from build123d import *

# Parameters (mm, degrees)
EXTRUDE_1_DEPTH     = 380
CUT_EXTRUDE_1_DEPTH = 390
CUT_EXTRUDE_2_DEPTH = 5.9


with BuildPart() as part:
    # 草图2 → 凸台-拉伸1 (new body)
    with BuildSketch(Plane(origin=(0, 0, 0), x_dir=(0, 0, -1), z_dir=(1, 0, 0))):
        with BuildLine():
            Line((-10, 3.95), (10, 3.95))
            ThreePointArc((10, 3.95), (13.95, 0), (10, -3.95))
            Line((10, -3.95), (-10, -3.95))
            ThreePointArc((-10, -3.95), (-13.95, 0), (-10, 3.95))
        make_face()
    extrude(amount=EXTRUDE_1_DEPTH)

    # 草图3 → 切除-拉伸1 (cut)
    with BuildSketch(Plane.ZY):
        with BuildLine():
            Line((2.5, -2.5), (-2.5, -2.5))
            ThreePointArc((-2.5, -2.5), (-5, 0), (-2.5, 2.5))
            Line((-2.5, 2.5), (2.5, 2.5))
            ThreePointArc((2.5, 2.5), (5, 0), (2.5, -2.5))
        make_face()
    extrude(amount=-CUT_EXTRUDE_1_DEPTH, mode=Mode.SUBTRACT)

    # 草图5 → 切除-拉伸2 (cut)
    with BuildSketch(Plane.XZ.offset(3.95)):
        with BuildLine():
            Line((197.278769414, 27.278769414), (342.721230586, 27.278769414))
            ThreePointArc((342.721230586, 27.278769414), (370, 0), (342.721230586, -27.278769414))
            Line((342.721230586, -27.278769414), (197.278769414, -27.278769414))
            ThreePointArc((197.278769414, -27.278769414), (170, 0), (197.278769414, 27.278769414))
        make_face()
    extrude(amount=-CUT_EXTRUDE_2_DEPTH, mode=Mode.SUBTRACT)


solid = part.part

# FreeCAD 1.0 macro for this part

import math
import FreeCAD as App
import Part
import Sketcher
from FreeCAD import Vector
Q = App.Units.Quantity

doc = App.newDocument("Part")
params = doc.addObject("Spreadsheet::Sheet", "Params")
for row, (alias, value) in enumerate([
    ("sketch1_height", "20 mm"),
    ("sketch1_radius", "3.95 mm"),
    ("pad1_length", "380 mm"),
    ("sketch2_radius", "2.5 mm"),
    ("sketch2_height", "5 mm"),
    ("pocket1_length", "390 mm"),
    ("pocket2_length", "5.9 mm"),
], start=1):
    params.set(f"A{row}", alias)
    params.set(f"B{row}", "=" + value)
    params.setAlias(f"B{row}", alias)

body = doc.addObject("PartDesign::Body", "Body")

# Sketch on YZ plane
sketch1 = doc.addObject("Sketcher::SketchObject", "Sketch")
body.addObject(sketch1)
sketch1.AttachmentSupport = (doc.YZ_Plane, [""])
sketch1.MapMode = "FlatFace"
sketch1.addGeometry(Part.LineSegment(Vector(3.95, -10, 0), Vector(3.95, 10, 0)), False)
sketch1.addGeometry(Part.ArcOfCircle(Part.Circle(Vector(0, 10, 0), Vector(0, 0, 1), 3.95), math.radians(0), math.radians(180)), False)
sketch1.addGeometry(Part.LineSegment(Vector(-3.95, 10, 0), Vector(-3.95, -10, 0)), False)
sketch1.addGeometry(Part.ArcOfCircle(Part.Circle(Vector(0, -10, 0), Vector(0, 0, 1), 3.95), math.radians(180), math.radians(360)), False)
sketch1.addConstraint(Sketcher.Constraint("Tangent", 0, 2, 1, 1))
sketch1.addConstraint(Sketcher.Constraint("Tangent", 1, 2, 2, 1))
sketch1.addConstraint(Sketcher.Constraint("Tangent", 2, 2, 3, 1))
sketch1.addConstraint(Sketcher.Constraint("Tangent", 3, 2, 0, 1))
sketch1.addConstraint(Sketcher.Constraint("Vertical", 0))
sketch1.addConstraint(Sketcher.Constraint("Vertical", 2))
sketch1.addConstraint(Sketcher.Constraint("Symmetric", 1, 3, 3, 3, -1, 1))
sketch1.addConstraint(Sketcher.Constraint("DistanceY", 0, 1, 0, 2, Q("20 mm")))
sketch1.addConstraint(Sketcher.Constraint("Radius", 1, Q("3.95 mm")))
sketch1.setExpression("Constraints[7]", "Params.sketch1_height")
sketch1.setExpression("Constraints[8]", "Params.sketch1_radius")
pad1 = doc.addObject("PartDesign::Pad", "Pad")
body.addObject(pad1)
pad1.Profile = sketch1
pad1.setExpression("Length", "Params.pad1_length")

# Sketch on YZ plane
sketch2 = doc.addObject("Sketcher::SketchObject", "Sketch001")
body.addObject(sketch2)
sketch2.AttachmentSupport = (doc.YZ_Plane, [""])
sketch2.MapMode = "FlatFace"
sketch2.addGeometry(Part.LineSegment(Vector(-2.5, -2.5, 0), Vector(-2.5, 2.5, 0)), False)
sketch2.addGeometry(Part.ArcOfCircle(Part.Circle(Vector(0, 2.5, 0), Vector(0, 0, 1), 2.5), math.radians(0), math.radians(180)), False)
sketch2.addGeometry(Part.LineSegment(Vector(2.5, 2.5, 0), Vector(2.5, -2.5, 0)), False)
sketch2.addGeometry(Part.ArcOfCircle(Part.Circle(Vector(0, -2.5, 0), Vector(0, 0, 1), 2.5), math.radians(180), math.radians(360)), False)
sketch2.addConstraint(Sketcher.Constraint("Tangent", 0, 2, 1, 2))
sketch2.addConstraint(Sketcher.Constraint("Tangent", 1, 1, 2, 1))
sketch2.addConstraint(Sketcher.Constraint("Tangent", 2, 2, 3, 2))
sketch2.addConstraint(Sketcher.Constraint("Tangent", 3, 1, 0, 1))
sketch2.addConstraint(Sketcher.Constraint("Vertical", 0))
sketch2.addConstraint(Sketcher.Constraint("Vertical", 2))
sketch2.addConstraint(Sketcher.Constraint("Symmetric", 1, 3, 3, 3, -1, 1))
sketch2.addConstraint(Sketcher.Constraint("Radius", 1, Q("2.5 mm")))
sketch2.addConstraint(Sketcher.Constraint("DistanceY", 0, 1, 0, 2, Q("5 mm")))
sketch2.setExpression("Constraints[7]", "Params.sketch2_radius")
sketch2.setExpression("Constraints[8]", "Params.sketch2_height")
pocket1 = doc.addObject("PartDesign::Pocket", "Pocket")
body.addObject(pocket1)
pocket1.Profile = sketch2
pocket1.setExpression("Length", "Params.pocket1_length")
pocket1.Reversed = True

# Sketch on XZ plane
sketch3 = doc.addObject("Sketcher::SketchObject", "Sketch002")
body.addObject(sketch3)
sketch3.AttachmentSupport = (doc.XZ_Plane, [""])
sketch3.MapMode = "FlatFace"
sketch3.AttachmentOffset = App.Placement(Vector(0, 0, 3.95), App.Rotation())
sketch3.addGeometry(Part.LineSegment(Vector(342.721231, 27.278769, 0), Vector(197.278769, 27.278769, 0)), False)
sketch3.addGeometry(Part.ArcOfCircle(Part.Circle(Vector(197.278769, 0, 0), Vector(0, 0, 1), 27.278769), math.radians(90), math.radians(270)), False)
sketch3.addGeometry(Part.LineSegment(Vector(197.278769, -27.278769, 0), Vector(342.721231, -27.278769, 0)), False)
sketch3.addGeometry(Part.ArcOfCircle(Part.Circle(Vector(342.721231, 0, 0), Vector(0, 0, 1), 27.278769), math.radians(-90), math.radians(90)), False)
sketch3.addConstraint(Sketcher.Constraint("Tangent", 0, 2, 1, 1))
sketch3.addConstraint(Sketcher.Constraint("Tangent", 1, 2, 2, 1))
sketch3.addConstraint(Sketcher.Constraint("Tangent", 2, 2, 3, 1))
sketch3.addConstraint(Sketcher.Constraint("Tangent", 3, 2, 0, 1))
sketch3.addConstraint(Sketcher.Constraint("Horizontal", 0))
sketch3.addConstraint(Sketcher.Constraint("Horizontal", 2))
sketch3.addConstraint(Sketcher.Constraint("PointOnObject", 1, 3, -1))
sketch3.addConstraint(Sketcher.Constraint("Radius", 1, Q("27.278769 mm")))
sketch3.addConstraint(Sketcher.Constraint("DistanceX", 0, 2, 0, 1, Q("145.442461 mm")))
sketch3.addConstraint(Sketcher.Constraint("DistanceX", -1, 1, 1, 3, Q("197.278769 mm")))
pocket2 = doc.addObject("PartDesign::Pocket", "Pocket001")
body.addObject(pocket2)
pocket2.Profile = sketch3
pocket2.setExpression("Length", "Params.pocket2_length")

doc.recompute()
